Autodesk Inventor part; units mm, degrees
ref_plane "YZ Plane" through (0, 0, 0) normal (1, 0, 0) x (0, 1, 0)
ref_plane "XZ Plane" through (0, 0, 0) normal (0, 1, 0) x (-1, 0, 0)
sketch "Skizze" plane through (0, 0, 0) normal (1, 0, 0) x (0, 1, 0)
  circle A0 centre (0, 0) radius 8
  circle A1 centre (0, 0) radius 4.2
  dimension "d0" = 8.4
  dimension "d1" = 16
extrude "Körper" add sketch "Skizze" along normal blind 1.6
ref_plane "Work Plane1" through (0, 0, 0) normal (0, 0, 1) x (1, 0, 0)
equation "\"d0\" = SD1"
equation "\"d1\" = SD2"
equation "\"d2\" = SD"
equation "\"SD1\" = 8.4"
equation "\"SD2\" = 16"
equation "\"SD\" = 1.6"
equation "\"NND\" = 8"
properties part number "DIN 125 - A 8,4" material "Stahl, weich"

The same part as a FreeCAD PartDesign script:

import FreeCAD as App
import Part
import Sketcher

V = App.Vector

doc = App.newDocument("Part")
body = doc.addObject("PartDesign::Body", "Body")

sketch1 = body.newObject("Sketcher::SketchObject", "Sketch")
sketch1.AttachmentSupport = (doc.getObject("YZ_Plane"), [""])
sketch1.MapMode = "FlatFace"
sketch1.addGeometry([
    Part.Circle(V(0, 0, 0), V(0, 0, 1), 8),
    Part.Circle(V(0, 0, 0), V(0, 0, 1), 4.2),
], False)
sketch1.addConstraint([
    Sketcher.Constraint("Coincident", 0, 3, -1, 1),
    Sketcher.Constraint("Coincident", 1, 3, -1, 1),
    Sketcher.Constraint("Diameter", 0, 16.0),
    Sketcher.Constraint("Diameter", 1, 8.4),
])
pad1 = body.newObject("PartDesign::Pad", "Pad")
pad1.Profile = sketch1
pad1.Length = 1.6

doc.recompute()
